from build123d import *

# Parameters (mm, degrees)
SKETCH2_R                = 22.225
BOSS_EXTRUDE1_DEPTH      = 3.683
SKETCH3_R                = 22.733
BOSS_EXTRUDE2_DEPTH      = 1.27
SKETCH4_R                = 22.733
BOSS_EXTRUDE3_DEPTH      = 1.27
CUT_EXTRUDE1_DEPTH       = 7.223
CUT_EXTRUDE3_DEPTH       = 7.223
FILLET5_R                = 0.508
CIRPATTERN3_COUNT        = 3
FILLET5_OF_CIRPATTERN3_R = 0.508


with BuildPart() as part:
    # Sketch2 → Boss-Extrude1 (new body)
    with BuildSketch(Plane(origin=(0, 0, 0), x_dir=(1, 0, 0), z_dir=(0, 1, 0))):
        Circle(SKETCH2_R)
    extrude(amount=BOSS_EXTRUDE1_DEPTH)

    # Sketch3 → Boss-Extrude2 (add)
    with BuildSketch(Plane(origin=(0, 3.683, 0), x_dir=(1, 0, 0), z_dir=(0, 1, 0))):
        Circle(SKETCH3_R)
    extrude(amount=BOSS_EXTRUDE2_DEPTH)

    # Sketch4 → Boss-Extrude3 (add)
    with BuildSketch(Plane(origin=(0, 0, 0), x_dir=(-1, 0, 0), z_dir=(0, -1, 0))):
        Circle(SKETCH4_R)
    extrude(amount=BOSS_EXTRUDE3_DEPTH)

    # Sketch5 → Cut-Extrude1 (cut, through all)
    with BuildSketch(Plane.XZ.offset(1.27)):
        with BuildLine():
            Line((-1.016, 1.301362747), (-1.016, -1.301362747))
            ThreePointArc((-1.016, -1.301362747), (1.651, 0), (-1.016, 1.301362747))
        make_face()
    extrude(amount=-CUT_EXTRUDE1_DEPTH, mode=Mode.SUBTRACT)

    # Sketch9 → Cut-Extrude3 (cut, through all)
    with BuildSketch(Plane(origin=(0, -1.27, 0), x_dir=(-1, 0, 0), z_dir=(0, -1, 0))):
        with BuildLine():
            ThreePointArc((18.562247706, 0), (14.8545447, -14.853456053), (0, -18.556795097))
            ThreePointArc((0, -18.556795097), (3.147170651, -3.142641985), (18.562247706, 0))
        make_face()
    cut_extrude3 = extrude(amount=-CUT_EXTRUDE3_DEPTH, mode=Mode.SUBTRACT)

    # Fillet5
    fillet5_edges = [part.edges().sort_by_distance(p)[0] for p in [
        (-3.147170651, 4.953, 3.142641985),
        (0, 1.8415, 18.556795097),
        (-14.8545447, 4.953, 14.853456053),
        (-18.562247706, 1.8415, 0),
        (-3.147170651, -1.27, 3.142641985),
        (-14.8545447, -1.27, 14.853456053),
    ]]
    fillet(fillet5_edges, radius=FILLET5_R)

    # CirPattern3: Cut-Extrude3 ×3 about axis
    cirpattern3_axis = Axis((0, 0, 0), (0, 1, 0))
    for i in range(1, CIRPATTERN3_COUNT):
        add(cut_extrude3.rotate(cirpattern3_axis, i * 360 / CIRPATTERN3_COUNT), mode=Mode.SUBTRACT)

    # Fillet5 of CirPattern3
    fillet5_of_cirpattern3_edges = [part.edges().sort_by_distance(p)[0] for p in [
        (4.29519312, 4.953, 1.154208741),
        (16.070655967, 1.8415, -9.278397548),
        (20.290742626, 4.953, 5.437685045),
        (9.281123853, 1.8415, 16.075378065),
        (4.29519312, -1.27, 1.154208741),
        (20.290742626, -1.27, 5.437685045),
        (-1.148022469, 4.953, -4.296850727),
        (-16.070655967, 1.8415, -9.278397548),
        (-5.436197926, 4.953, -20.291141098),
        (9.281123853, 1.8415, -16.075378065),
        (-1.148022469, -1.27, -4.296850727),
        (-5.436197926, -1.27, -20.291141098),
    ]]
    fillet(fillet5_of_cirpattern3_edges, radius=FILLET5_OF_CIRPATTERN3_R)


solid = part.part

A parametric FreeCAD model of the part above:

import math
import FreeCAD as App
import Part
import Sketcher
Q = App.Units.Quantity


def edges_at(feature, points):
    """Names of the edges that pass closest to the given points."""
    edges = feature.Shape.Edges
    near = lambda p: min(range(len(edges)), key=lambda i: edges[i].distToShape(Part.Vertex(*p))[0])
    return sorted({f"Edge{near(p) + 1}" for p in points})

doc = App.newDocument("Part")
params = doc.addObject("Spreadsheet::Sheet", "Params")
for row, (alias, value) in enumerate([
    ("sketch1_diameter", "1.75 in"),
    ("pad1_length", "0.145 in"),
    ("sketch2_diameter", "1.79 in"),
    ("pad2_length", "0.05 in"),
    ("sketch3_diameter", "1.79 in"),
    ("pad3_length", "0.05 in"),
    ("sketch4_radius", "0.065 in"),
    ("fillet_radius", "0.02 in"),
    ("fillet2_radius", "0.02 in"),
], start=1):
    params.set(f"A{row}", alias)
    params.set(f"B{row}", "=" + value)
    params.setAlias(f"B{row}", alias)

body = doc.addObject("PartDesign::Body", "Body")

# Sketch on XZ plane
sketch1 = body.newObject("Sketcher::SketchObject", "Sketch")
sketch1.AttachmentSupport = (doc.getObject("XZ_Plane"), [""])
sketch1.MapMode = "FlatFace"
sketch1.addGeometry(Part.Circle(App.Vector(0, 0, 0), App.Vector(0, 0, 1), 22.225), False)
sketch1.addConstraint(Sketcher.Constraint("Coincident", 0, 3, -1, 1))
sketch1.addConstraint(Sketcher.Constraint("Diameter", 0, Q("1.75 in")))
sketch1.setExpression("Constraints[1]", "Params.sketch1_diameter")
pad1 = body.newObject("PartDesign::Pad", "Pad")
pad1.Profile = sketch1
pad1.setExpression("Length", "Params.pad1_length")
pad1.Reversed = True

# Sketch on XZ plane
sketch2 = body.newObject("Sketcher::SketchObject", "Sketch001")
sketch2.AttachmentSupport = (doc.getObject("XZ_Plane"), [""])
sketch2.MapMode = "FlatFace"
sketch2.AttachmentOffset = App.Placement(App.Vector(0, 0, -0.145 * 25.4), App.Rotation())
sketch2.addGeometry(Part.Circle(App.Vector(0, 0, 0), App.Vector(0, 0, 1), 22.733), False)
sketch2.addConstraint(Sketcher.Constraint("Coincident", 0, 3, -1, 1))
sketch2.addConstraint(Sketcher.Constraint("Diameter", 0, Q("1.79 in")))
sketch2.setExpression("Constraints[1]", "Params.sketch2_diameter")
pad2 = body.newObject("PartDesign::Pad", "Pad001")
pad2.Profile = sketch2
pad2.setExpression("Length", "Params.pad2_length")
pad2.Reversed = True

# Sketch on XZ plane
sketch3 = body.newObject("Sketcher::SketchObject", "Sketch002")
sketch3.AttachmentSupport = (doc.getObject("XZ_Plane"), [""])
sketch3.MapMode = "FlatFace"
sketch3.addGeometry(Part.Circle(App.Vector(0, 0, 0), App.Vector(0, 0, 1), 22.733), False)
sketch3.addConstraint(Sketcher.Constraint("Coincident", 0, 3, -1, 1))
sketch3.addConstraint(Sketcher.Constraint("Diameter", 0, Q("1.79 in")))
sketch3.setExpression("Constraints[1]", "Params.sketch3_diameter")
pad3 = body.newObject("PartDesign::Pad", "Pad002")
pad3.Profile = sketch3
pad3.setExpression("Length", "Params.pad3_length")

# Sketch on XZ plane
sketch4 = body.newObject("Sketcher::SketchObject", "Sketch003")
sketch4.AttachmentSupport = (doc.getObject("XZ_Plane"), [""])
sketch4.MapMode = "FlatFace"
sketch4.AttachmentOffset = App.Placement(App.Vector(0, 0, 0.05 * 25.4), App.Rotation())
sketch4.addGeometry(Part.LineSegment(App.Vector(-1.016, 1.301363, 0), App.Vector(-1.016, -1.301363, 0)), False)
sketch4.addGeometry(Part.ArcOfCircle(Part.Circle(App.Vector(0, 0, 0), App.Vector(0, 0, 1), 1.651), math.radians(-127.979872), math.radians(127.979872)), False)
sketch4.addConstraint(Sketcher.Constraint("Coincident", 0, 1, 1, 2))
sketch4.addConstraint(Sketcher.Constraint("Coincident", 1, 1, 0, 2))
sketch4.addConstraint(Sketcher.Constraint("Vertical", 0))
sketch4.addConstraint(Sketcher.Constraint("Coincident", 1, 3, -1, 1))
sketch4.addConstraint(Sketcher.Constraint("Radius", 1, Q("0.065 in")))
sketch4.addConstraint(Sketcher.Constraint("DistanceX", 0, 1, -1, 1, Q("0.04 in")))
sketch4.setExpression("Constraints[4]", "Params.sketch4_radius")
pocket1 = body.newObject("PartDesign::Pocket", "Pocket")
pocket1.Profile = sketch4
pocket1.Type = "ThroughAll"

# Sketch on XZ plane
sketch5 = body.newObject("Sketcher::SketchObject", "Sketch004")
sketch5.AttachmentSupport = (doc.getObject("XZ_Plane"), [""])
sketch5.MapMode = "FlatFace"
sketch5.AttachmentOffset = App.Placement(App.Vector(0, 0, 0.05 * 25.4), App.Rotation())
sketch5.addGeometry(Part.ArcOfCircle(Part.Circle(App.Vector(-4.34469, 4.340514, 0), App.Vector(0, 0, 1), 14.865362), math.radians(73.006129), math.radians(196.977038)), False)
sketch5.addGeometry(Part.ArcOfCircle(Part.Circle(App.Vector(-13.231535, 13.22997, 0), App.Vector(0, 0, 1), 14.263541), math.radians(-111.945837), math.radians(21.929004)), False)
sketch5.addConstraint(Sketcher.Constraint("Coincident", 0, 1, 1, 2))
sketch5.addConstraint(Sketcher.Constraint("Coincident", 1, 1, 0, 2))
sketch5.addConstraint(Sketcher.Constraint("PointOnObject", 0, 1, -2))
sketch5.addConstraint(Sketcher.Constraint("PointOnObject", 1, 1, -1))
sketch5.addConstraint(Sketcher.Constraint("Radius", 1, 14.263541))
sketch5.addConstraint(Sketcher.Constraint("Radius", 0, 14.865362))
sketch5.addConstraint(Sketcher.Constraint("DistanceX", 0, 3, -1, 1, 4.34469))
sketch5.addConstraint(Sketcher.Constraint("DistanceY", -1, 1, 1, 3, 13.22997))
pocket2 = body.newObject("PartDesign::Pocket", "Pocket001")
pocket2.Profile = sketch5
pocket2.Type = "ThroughAll"
doc.recompute()

fillet = body.newObject("PartDesign::Fillet", "Fillet")
fillet.Base = (pocket2, edges_at(pocket2, [
    (-3.147, 4.953, 3.143),
    (0, 1.841, 18.557),
    (-14.855, 4.953, 14.853),
    (-18.562, 1.841, 0),
    (-3.147, -1.27, 3.143),
    (-14.855, -1.27, 14.853),
]))
fillet.setExpression("Radius", "Params.fillet_radius")
doc.recompute()

polarpattern = body.newObject("PartDesign::PolarPattern", "PolarPattern")
polarpattern.Originals = [pocket2]
polarpattern.Axis = (doc.getObject("Y_Axis"), [""])
polarpattern.Angle = 360
polarpattern.Occurrences = 3
body.Tip = polarpattern
doc.recompute()

fillet2 = body.newObject("PartDesign::Fillet", "Fillet001")
fillet2.Base = (polarpattern, edges_at(polarpattern, [
    (4.295, 4.953, 1.154),
    (16.071, 1.841, -9.278),
    (20.291, 4.953, 5.438),
    (9.281, 1.841, 16.075),
    (4.295, -1.27, 1.154),
    (20.291, -1.27, 5.438),
    (-1.148, 4.953, -4.297),
    (-16.071, 1.841, -9.278),
    (-5.436, 4.953, -20.291),
    (9.281, 1.841, -16.075),
    (-1.148, -1.27, -4.297),
    (-5.436, -1.27, -20.291),
]))
fillet2.setExpression("Radius", "Params.fillet2_radius")

doc.recompute()
